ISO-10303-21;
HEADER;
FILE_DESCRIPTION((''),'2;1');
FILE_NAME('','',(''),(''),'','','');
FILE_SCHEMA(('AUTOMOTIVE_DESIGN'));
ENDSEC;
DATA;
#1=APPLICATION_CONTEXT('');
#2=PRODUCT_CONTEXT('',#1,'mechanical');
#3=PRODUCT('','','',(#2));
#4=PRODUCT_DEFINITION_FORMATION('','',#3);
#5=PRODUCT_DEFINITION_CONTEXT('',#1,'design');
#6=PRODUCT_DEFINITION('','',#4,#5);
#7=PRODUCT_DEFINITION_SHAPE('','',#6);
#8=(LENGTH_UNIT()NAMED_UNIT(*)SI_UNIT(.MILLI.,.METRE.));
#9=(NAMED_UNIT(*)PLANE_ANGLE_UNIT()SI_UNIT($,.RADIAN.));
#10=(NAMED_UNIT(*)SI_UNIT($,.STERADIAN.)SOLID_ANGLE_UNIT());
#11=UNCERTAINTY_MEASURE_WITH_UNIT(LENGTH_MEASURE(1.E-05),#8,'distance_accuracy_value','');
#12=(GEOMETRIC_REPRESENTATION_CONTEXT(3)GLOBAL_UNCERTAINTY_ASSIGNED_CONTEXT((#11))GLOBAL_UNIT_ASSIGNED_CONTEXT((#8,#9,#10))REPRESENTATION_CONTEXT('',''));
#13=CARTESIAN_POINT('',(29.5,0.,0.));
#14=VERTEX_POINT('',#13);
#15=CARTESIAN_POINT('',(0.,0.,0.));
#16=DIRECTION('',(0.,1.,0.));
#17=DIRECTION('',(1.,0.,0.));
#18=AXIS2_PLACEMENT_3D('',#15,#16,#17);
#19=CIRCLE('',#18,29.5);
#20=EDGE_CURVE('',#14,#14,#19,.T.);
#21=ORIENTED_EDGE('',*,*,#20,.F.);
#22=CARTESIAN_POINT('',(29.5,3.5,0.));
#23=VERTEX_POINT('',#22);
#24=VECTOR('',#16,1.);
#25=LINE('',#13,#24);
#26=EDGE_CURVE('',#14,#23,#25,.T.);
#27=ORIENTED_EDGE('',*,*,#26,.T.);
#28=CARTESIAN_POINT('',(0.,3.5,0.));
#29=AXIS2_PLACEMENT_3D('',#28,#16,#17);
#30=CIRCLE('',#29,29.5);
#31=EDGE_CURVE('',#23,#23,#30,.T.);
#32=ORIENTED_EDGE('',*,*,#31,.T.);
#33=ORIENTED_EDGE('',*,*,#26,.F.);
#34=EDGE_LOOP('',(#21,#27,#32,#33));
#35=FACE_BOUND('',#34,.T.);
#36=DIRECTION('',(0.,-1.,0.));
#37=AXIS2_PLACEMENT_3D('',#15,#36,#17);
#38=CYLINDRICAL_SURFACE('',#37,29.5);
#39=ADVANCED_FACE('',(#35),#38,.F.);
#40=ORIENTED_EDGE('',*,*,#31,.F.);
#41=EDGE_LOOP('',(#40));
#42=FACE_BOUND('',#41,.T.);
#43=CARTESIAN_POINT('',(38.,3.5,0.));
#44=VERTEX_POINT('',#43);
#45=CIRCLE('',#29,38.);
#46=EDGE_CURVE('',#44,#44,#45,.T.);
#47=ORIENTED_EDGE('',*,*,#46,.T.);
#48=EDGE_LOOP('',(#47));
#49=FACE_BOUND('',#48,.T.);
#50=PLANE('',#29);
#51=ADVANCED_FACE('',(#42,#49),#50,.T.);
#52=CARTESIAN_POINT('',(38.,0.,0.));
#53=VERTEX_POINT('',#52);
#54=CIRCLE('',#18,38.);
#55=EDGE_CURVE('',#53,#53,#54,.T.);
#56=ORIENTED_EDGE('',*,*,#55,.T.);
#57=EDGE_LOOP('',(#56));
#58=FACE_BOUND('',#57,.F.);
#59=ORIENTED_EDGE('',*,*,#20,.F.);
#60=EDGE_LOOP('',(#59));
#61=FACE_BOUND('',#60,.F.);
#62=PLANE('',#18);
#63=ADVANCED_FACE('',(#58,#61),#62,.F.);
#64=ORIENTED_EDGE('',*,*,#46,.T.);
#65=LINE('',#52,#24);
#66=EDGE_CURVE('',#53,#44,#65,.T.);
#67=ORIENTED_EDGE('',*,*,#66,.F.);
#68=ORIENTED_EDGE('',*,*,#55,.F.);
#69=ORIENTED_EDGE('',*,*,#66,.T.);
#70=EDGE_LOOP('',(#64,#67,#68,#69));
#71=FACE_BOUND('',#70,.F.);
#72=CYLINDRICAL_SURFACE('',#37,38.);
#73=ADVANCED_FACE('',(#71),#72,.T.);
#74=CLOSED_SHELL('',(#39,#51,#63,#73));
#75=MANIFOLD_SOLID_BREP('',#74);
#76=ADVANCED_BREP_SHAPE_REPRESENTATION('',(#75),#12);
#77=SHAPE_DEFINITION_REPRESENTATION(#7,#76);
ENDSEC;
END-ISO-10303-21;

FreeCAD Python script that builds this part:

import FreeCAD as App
import Part
import Sketcher
Q = App.Units.Quantity

doc = App.newDocument("Part")
body = doc.addObject("PartDesign::Body", "Body")

# Sketch on XZ plane
sketch1 = body.newObject("Sketcher::SketchObject", "Sketch")
sketch1.AttachmentSupport = (doc.getObject("XZ_Plane"), [""])
sketch1.MapMode = "FlatFace"
sketch1.addGeometry(Part.Circle(App.Vector(0, 0, 0), App.Vector(0, 0, 1), 38), False)
sketch1.addGeometry(Part.Circle(App.Vector(0, 0, 0), App.Vector(0, 0, 1), 30), False)
sketch1.addConstraint(Sketcher.Constraint("Coincident", 0, 3, -1, 1))
sketch1.addConstraint(Sketcher.Constraint("Coincident", 1, 3, -1, 1))
sketch1.addConstraint(Sketcher.Constraint("Diameter", 0, Q("76 mm")))
sketch1.addConstraint(Sketcher.Constraint("Diameter", 1, Q("59 mm")))
pad1 = body.newObject("PartDesign::Pad", "Pad")
pad1.Profile = sketch1
pad1.Length = 3.5
pad1.Reversed = True

doc.recompute()
